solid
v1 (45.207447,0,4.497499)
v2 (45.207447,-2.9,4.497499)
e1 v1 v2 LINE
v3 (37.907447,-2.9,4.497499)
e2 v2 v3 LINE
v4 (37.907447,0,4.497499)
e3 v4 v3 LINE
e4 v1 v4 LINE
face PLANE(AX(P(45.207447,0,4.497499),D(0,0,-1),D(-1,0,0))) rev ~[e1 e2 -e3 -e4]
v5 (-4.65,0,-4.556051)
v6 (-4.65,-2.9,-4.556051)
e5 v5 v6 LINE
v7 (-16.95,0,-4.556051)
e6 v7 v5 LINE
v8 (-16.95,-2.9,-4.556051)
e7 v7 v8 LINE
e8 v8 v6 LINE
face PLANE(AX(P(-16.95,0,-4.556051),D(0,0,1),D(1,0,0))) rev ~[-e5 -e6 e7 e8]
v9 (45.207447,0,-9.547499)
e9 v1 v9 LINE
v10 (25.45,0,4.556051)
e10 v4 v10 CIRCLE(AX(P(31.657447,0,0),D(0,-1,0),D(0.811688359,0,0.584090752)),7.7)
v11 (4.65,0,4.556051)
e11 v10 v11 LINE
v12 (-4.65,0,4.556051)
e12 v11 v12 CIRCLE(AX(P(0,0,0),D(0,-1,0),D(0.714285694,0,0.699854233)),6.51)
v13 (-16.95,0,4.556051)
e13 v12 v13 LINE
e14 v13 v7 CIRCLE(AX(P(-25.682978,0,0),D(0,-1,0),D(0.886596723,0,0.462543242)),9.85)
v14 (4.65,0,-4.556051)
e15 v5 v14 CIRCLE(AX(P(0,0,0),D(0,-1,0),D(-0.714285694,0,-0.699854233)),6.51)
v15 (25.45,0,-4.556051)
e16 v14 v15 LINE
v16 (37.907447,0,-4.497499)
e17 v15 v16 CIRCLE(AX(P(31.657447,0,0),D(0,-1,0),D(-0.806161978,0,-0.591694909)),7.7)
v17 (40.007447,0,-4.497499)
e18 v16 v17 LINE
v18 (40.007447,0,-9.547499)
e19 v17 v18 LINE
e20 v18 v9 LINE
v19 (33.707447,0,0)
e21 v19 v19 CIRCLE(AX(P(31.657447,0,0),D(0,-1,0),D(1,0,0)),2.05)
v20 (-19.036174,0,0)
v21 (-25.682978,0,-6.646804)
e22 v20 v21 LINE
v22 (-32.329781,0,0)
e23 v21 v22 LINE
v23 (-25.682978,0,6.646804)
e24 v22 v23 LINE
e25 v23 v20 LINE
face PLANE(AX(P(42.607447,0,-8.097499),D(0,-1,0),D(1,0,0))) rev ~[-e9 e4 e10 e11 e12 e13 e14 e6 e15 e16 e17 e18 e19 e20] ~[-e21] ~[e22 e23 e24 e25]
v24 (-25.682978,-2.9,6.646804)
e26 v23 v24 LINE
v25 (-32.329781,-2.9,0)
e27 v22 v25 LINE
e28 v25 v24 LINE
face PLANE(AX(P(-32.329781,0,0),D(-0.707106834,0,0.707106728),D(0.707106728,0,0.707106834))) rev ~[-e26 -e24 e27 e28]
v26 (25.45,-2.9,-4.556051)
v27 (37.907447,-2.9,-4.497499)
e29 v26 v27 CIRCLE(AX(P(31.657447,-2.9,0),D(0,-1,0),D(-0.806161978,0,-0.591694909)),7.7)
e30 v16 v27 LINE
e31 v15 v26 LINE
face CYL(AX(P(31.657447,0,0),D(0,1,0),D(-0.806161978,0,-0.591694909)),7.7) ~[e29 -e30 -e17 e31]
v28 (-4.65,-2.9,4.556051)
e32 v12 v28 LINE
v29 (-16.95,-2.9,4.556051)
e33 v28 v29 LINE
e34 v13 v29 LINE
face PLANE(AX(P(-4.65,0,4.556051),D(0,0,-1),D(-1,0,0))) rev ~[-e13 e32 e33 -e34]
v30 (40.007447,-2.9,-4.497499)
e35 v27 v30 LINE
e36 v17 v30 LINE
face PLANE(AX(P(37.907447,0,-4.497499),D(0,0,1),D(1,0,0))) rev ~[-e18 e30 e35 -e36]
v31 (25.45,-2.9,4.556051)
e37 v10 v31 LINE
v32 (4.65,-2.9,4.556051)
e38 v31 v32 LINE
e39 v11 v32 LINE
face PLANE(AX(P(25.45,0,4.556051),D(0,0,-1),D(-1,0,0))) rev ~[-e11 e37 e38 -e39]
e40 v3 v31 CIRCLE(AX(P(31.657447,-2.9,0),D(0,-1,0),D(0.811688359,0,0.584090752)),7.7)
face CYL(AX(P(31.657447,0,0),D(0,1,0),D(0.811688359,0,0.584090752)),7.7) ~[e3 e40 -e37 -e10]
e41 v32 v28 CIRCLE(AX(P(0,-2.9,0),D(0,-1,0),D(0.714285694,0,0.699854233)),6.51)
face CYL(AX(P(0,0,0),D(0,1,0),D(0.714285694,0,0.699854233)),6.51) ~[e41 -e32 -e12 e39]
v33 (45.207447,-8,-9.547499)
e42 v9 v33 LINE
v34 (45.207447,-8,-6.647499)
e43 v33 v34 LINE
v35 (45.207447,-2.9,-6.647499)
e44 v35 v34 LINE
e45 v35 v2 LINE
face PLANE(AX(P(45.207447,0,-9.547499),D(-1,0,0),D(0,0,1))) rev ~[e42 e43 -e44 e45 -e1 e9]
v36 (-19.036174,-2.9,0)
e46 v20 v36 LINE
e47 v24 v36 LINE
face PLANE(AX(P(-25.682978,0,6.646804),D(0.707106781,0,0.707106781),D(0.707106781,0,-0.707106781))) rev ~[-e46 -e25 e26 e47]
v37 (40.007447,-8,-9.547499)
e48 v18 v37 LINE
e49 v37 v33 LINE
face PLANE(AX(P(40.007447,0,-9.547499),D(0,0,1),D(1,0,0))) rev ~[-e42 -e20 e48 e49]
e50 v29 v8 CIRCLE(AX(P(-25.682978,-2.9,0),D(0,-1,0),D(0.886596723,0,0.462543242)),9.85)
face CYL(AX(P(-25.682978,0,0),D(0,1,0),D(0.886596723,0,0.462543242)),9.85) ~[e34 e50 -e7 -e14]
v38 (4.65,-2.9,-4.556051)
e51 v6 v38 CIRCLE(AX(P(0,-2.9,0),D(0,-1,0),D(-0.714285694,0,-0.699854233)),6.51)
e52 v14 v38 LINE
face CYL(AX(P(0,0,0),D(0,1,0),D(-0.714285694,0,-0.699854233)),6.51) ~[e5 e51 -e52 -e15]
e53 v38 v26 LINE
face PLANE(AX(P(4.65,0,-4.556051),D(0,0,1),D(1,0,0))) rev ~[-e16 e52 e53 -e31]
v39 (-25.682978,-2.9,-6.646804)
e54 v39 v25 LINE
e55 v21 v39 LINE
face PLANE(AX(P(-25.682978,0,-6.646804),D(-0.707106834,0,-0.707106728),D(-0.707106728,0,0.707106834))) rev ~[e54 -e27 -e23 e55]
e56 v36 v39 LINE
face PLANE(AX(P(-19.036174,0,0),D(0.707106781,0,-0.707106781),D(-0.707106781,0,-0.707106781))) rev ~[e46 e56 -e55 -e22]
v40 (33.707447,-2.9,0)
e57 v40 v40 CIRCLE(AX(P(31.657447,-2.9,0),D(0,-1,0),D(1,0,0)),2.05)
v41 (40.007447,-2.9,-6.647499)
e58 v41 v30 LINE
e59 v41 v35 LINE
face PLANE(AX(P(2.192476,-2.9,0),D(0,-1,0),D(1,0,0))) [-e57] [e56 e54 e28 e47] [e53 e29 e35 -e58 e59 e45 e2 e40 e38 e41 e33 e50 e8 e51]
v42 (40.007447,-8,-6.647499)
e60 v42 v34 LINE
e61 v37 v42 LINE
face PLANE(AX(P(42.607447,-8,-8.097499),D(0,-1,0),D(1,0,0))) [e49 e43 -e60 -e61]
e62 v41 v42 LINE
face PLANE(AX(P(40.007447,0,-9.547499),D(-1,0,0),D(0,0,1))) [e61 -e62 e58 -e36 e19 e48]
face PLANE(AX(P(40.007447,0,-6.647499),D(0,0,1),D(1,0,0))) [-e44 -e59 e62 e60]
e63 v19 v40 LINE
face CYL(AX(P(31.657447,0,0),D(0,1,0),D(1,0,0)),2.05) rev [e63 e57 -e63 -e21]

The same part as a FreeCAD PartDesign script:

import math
import FreeCAD as App
import Part
import Sketcher
Q = App.Units.Quantity


def add_polygon(sketch, points):
    """Adds a closed chain of lines whose ends are joined by coincident constraints."""
    first, n = sketch.GeometryCount, len(points)
    for a, b in zip(points, points[1:] + points[:1]):
        sketch.addGeometry(Part.LineSegment(App.Vector(*a, 0), App.Vector(*b, 0)), False)
    for i in range(n):
        sketch.addConstraint(Sketcher.Constraint("Coincident", first + i, 2, first + (i + 1) % n, 1))

doc = App.newDocument("Part")
body = doc.addObject("PartDesign::Body", "Body")

# Sketch on XZ plane
sketch1 = body.newObject("Sketcher::SketchObject", "Sketch")
sketch1.AttachmentSupport = (doc.getObject("XZ_Plane"), [""])
sketch1.MapMode = "FlatFace"
sketch1.addGeometry(Part.LineSegment(App.Vector(25.4, 4.6, 0), App.Vector(4.7, 4.6, 0)), False)  # 0
sketch1.addGeometry(Part.ArcOfCircle(Part.Circle(App.Vector(0, 0, 0), App.Vector(0, 0, 1), 6.5), math.radians(44), math.radians(136)), False)  # 1
sketch1.addGeometry(Part.LineSegment(App.Vector(-4.7, 4.6, 0), App.Vector(-16.9, 4.6, 0)), False)  # 2
sketch1.addGeometry(Part.ArcOfCircle(Part.Circle(App.Vector(-25.7, 0, 0), App.Vector(0, 0, 1), 9.9), math.radians(28), math.radians(332)), False)  # 3
sketch1.addGeometry(Part.LineSegment(App.Vector(-16.9, -4.6, 0), App.Vector(-4.7, -4.6, 0)), False)  # 4
sketch1.addGeometry(Part.ArcOfCircle(Part.Circle(App.Vector(0, 0, 0), App.Vector(0, 0, 1), 6.5), math.radians(-136), math.radians(-44)), False)  # 5
sketch1.addGeometry(Part.LineSegment(App.Vector(4.7, -4.6, 0), App.Vector(25.4, -4.6, 0)), False)  # 6
sketch1.addGeometry(Part.ArcOfCircle(Part.Circle(App.Vector(31.7, 0, 0), App.Vector(0, 0, 1), 7.7), math.radians(-144), math.radians(-36)), False)  # 7
sketch1.addGeometry(Part.LineSegment(App.Vector(37.9, -4.5, 0), App.Vector(40, -4.5, 0)), False)  # 8
sketch1.addGeometry(Part.LineSegment(App.Vector(40, -4.5, 0), App.Vector(40, -6.6, 0)), False)  # 9
sketch1.addGeometry(Part.LineSegment(App.Vector(40, -6.6, 0), App.Vector(45.2, -6.6, 0)), False)  # 10
sketch1.addGeometry(Part.LineSegment(App.Vector(45.2, -6.6, 0), App.Vector(45.2, 4.5, 0)), False)  # 11
sketch1.addGeometry(Part.LineSegment(App.Vector(45.2, 4.5, 0), App.Vector(37.9, 4.5, 0)), False)  # 12
sketch1.addGeometry(Part.ArcOfCircle(Part.Circle(App.Vector(31.7, 0, 0), App.Vector(0, 0, 1), 7.7), math.radians(36), math.radians(144)), False)  # 13
add_polygon(sketch1, [(-25.7, -6.6), (-32.3, 0), (-25.7, 6.6), (-19, 0)])  # lines 14-17
sketch1.addGeometry(Part.Circle(App.Vector(31.7, 0, 0), App.Vector(0, 0, 1), 2), False)  # 18
sketch1.addConstraint([
    Sketcher.Constraint("Coincident", 0, 2, 1, 1),
    Sketcher.Constraint("Coincident", 1, 2, 2, 1),
    Sketcher.Constraint("Coincident", 2, 2, 3, 1),
    Sketcher.Constraint("Coincident", 3, 2, 4, 1),
    Sketcher.Constraint("Coincident", 4, 2, 5, 1),
    Sketcher.Constraint("Coincident", 5, 2, 6, 1),
    Sketcher.Constraint("Coincident", 6, 2, 7, 1),
    Sketcher.Constraint("Coincident", 7, 2, 8, 1),
    Sketcher.Constraint("Coincident", 8, 2, 9, 1),
    Sketcher.Constraint("Coincident", 9, 2, 10, 1),
    Sketcher.Constraint("Coincident", 10, 2, 11, 1),
    Sketcher.Constraint("Coincident", 11, 2, 12, 1),
    Sketcher.Constraint("Coincident", 12, 2, 13, 1),
    Sketcher.Constraint("Coincident", 13, 2, 0, 1),
    Sketcher.Constraint("Horizontal", 0),
    Sketcher.Constraint("Horizontal", 2),
    Sketcher.Constraint("Horizontal", 4),
    Sketcher.Constraint("Horizontal", 6),
    Sketcher.Constraint("Horizontal", 8),
    Sketcher.Constraint("Vertical", 9),
    Sketcher.Constraint("Horizontal", 10),
    Sketcher.Constraint("Vertical", 11),
    Sketcher.Constraint("Horizontal", 12),
    Sketcher.Constraint("Coincident", 1, 3, -1, 1),
    Sketcher.Constraint("Coincident", 5, 3, -1, 1),
    Sketcher.Constraint("Coincident", 13, 3, 7, 3),
    Sketcher.Constraint("Coincident", 18, 3, 7, 3),
    Sketcher.Constraint("Equal", 1, 5),
    Sketcher.Constraint("Equal", 7, 13),
    Sketcher.Constraint("Symmetric", 2, 2, 3, 2, -1),
    Sketcher.Constraint("Symmetric", 7, 2, 12, 2, -1),
    Sketcher.Constraint("Symmetric", 15, 2, 17, 2, -1),
    Sketcher.Constraint("PointOnObject", 14, 2, -1),
    Sketcher.Constraint("PointOnObject", 16, 2, -1),
    Sketcher.Constraint("Perpendicular", 14, 15),
    Sketcher.Constraint("Perpendicular", 15, 16),
    Sketcher.Constraint("Horizontal", 0, 2, 1, 2),
    Sketcher.Constraint("Horizontal", 4, 2, 5, 2),
    Sketcher.Constraint("Vertical", 3, 3, 15, 2),
    Sketcher.Constraint("Diameter", 18, Q("4.1 mm")),
    Sketcher.Constraint("Radius", 7, Q("7.7 mm")),
    Sketcher.Constraint("Radius", 1, Q("6.51 mm")),
    Sketcher.Constraint("Radius", 3, Q("9.85 mm")),
    Sketcher.Constraint("DistanceX", 0, 2, 0, 1, Q("20.8 mm")),
    Sketcher.Constraint("DistanceX", 2, 2, 2, 1, Q("12.3 mm")),
    Sketcher.Constraint("DistanceX", 8, 1, 8, 2, Q("2.1 mm")),
    Sketcher.Constraint("DistanceX", 10, 1, 10, 2, Q("5.2 mm")),
    Sketcher.Constraint("Distance", 14, Q("9.4 mm")),
    Sketcher.Constraint("DistanceY", 9, 2, 9, 1, Q("2.15 mm")),
    Sketcher.Constraint("DistanceX", 1, 2, 0, 2, Q("9.3 mm")),
    Sketcher.Constraint("DistanceY", 11, 1, 11, 2, Q("11.144998 mm")),
])
pad1 = body.newObject("PartDesign::Pad", "Pad")
pad1.Profile = sketch1
pad1.Length = 2.9

# Sketch on XZ plane
sketch2 = body.newObject("Sketcher::SketchObject", "Sketch001")
sketch2.AttachmentSupport = (doc.getObject("XZ_Plane"), [""])
sketch2.MapMode = "FlatFace"
add_polygon(sketch2, [(40, -6.6), (40, -9.5), (45.2, -9.5), (45.2, -6.6)])  # lines 0-3
sketch2.addConstraint([
    Sketcher.Constraint("Vertical", 0),
    Sketcher.Constraint("Horizontal", 1),
    Sketcher.Constraint("Vertical", 2),
    Sketcher.Constraint("Horizontal", 3),
    Sketcher.Constraint("DistanceX", 1, 1, 1, 2, Q("5.2 mm")),
    Sketcher.Constraint("DistanceY", 0, 2, 0, 1, Q("2.9 mm")),
    Sketcher.Constraint("DistanceY", 0, 2, -1, 1, Q("9.547499 mm")),
    Sketcher.Constraint("DistanceX", -1, 1, 0, 2, Q("40.007447 mm")),
])
pad2 = body.newObject("PartDesign::Pad", "Pad001")
pad2.Profile = sketch2
pad2.Length = 8

doc.recompute()
